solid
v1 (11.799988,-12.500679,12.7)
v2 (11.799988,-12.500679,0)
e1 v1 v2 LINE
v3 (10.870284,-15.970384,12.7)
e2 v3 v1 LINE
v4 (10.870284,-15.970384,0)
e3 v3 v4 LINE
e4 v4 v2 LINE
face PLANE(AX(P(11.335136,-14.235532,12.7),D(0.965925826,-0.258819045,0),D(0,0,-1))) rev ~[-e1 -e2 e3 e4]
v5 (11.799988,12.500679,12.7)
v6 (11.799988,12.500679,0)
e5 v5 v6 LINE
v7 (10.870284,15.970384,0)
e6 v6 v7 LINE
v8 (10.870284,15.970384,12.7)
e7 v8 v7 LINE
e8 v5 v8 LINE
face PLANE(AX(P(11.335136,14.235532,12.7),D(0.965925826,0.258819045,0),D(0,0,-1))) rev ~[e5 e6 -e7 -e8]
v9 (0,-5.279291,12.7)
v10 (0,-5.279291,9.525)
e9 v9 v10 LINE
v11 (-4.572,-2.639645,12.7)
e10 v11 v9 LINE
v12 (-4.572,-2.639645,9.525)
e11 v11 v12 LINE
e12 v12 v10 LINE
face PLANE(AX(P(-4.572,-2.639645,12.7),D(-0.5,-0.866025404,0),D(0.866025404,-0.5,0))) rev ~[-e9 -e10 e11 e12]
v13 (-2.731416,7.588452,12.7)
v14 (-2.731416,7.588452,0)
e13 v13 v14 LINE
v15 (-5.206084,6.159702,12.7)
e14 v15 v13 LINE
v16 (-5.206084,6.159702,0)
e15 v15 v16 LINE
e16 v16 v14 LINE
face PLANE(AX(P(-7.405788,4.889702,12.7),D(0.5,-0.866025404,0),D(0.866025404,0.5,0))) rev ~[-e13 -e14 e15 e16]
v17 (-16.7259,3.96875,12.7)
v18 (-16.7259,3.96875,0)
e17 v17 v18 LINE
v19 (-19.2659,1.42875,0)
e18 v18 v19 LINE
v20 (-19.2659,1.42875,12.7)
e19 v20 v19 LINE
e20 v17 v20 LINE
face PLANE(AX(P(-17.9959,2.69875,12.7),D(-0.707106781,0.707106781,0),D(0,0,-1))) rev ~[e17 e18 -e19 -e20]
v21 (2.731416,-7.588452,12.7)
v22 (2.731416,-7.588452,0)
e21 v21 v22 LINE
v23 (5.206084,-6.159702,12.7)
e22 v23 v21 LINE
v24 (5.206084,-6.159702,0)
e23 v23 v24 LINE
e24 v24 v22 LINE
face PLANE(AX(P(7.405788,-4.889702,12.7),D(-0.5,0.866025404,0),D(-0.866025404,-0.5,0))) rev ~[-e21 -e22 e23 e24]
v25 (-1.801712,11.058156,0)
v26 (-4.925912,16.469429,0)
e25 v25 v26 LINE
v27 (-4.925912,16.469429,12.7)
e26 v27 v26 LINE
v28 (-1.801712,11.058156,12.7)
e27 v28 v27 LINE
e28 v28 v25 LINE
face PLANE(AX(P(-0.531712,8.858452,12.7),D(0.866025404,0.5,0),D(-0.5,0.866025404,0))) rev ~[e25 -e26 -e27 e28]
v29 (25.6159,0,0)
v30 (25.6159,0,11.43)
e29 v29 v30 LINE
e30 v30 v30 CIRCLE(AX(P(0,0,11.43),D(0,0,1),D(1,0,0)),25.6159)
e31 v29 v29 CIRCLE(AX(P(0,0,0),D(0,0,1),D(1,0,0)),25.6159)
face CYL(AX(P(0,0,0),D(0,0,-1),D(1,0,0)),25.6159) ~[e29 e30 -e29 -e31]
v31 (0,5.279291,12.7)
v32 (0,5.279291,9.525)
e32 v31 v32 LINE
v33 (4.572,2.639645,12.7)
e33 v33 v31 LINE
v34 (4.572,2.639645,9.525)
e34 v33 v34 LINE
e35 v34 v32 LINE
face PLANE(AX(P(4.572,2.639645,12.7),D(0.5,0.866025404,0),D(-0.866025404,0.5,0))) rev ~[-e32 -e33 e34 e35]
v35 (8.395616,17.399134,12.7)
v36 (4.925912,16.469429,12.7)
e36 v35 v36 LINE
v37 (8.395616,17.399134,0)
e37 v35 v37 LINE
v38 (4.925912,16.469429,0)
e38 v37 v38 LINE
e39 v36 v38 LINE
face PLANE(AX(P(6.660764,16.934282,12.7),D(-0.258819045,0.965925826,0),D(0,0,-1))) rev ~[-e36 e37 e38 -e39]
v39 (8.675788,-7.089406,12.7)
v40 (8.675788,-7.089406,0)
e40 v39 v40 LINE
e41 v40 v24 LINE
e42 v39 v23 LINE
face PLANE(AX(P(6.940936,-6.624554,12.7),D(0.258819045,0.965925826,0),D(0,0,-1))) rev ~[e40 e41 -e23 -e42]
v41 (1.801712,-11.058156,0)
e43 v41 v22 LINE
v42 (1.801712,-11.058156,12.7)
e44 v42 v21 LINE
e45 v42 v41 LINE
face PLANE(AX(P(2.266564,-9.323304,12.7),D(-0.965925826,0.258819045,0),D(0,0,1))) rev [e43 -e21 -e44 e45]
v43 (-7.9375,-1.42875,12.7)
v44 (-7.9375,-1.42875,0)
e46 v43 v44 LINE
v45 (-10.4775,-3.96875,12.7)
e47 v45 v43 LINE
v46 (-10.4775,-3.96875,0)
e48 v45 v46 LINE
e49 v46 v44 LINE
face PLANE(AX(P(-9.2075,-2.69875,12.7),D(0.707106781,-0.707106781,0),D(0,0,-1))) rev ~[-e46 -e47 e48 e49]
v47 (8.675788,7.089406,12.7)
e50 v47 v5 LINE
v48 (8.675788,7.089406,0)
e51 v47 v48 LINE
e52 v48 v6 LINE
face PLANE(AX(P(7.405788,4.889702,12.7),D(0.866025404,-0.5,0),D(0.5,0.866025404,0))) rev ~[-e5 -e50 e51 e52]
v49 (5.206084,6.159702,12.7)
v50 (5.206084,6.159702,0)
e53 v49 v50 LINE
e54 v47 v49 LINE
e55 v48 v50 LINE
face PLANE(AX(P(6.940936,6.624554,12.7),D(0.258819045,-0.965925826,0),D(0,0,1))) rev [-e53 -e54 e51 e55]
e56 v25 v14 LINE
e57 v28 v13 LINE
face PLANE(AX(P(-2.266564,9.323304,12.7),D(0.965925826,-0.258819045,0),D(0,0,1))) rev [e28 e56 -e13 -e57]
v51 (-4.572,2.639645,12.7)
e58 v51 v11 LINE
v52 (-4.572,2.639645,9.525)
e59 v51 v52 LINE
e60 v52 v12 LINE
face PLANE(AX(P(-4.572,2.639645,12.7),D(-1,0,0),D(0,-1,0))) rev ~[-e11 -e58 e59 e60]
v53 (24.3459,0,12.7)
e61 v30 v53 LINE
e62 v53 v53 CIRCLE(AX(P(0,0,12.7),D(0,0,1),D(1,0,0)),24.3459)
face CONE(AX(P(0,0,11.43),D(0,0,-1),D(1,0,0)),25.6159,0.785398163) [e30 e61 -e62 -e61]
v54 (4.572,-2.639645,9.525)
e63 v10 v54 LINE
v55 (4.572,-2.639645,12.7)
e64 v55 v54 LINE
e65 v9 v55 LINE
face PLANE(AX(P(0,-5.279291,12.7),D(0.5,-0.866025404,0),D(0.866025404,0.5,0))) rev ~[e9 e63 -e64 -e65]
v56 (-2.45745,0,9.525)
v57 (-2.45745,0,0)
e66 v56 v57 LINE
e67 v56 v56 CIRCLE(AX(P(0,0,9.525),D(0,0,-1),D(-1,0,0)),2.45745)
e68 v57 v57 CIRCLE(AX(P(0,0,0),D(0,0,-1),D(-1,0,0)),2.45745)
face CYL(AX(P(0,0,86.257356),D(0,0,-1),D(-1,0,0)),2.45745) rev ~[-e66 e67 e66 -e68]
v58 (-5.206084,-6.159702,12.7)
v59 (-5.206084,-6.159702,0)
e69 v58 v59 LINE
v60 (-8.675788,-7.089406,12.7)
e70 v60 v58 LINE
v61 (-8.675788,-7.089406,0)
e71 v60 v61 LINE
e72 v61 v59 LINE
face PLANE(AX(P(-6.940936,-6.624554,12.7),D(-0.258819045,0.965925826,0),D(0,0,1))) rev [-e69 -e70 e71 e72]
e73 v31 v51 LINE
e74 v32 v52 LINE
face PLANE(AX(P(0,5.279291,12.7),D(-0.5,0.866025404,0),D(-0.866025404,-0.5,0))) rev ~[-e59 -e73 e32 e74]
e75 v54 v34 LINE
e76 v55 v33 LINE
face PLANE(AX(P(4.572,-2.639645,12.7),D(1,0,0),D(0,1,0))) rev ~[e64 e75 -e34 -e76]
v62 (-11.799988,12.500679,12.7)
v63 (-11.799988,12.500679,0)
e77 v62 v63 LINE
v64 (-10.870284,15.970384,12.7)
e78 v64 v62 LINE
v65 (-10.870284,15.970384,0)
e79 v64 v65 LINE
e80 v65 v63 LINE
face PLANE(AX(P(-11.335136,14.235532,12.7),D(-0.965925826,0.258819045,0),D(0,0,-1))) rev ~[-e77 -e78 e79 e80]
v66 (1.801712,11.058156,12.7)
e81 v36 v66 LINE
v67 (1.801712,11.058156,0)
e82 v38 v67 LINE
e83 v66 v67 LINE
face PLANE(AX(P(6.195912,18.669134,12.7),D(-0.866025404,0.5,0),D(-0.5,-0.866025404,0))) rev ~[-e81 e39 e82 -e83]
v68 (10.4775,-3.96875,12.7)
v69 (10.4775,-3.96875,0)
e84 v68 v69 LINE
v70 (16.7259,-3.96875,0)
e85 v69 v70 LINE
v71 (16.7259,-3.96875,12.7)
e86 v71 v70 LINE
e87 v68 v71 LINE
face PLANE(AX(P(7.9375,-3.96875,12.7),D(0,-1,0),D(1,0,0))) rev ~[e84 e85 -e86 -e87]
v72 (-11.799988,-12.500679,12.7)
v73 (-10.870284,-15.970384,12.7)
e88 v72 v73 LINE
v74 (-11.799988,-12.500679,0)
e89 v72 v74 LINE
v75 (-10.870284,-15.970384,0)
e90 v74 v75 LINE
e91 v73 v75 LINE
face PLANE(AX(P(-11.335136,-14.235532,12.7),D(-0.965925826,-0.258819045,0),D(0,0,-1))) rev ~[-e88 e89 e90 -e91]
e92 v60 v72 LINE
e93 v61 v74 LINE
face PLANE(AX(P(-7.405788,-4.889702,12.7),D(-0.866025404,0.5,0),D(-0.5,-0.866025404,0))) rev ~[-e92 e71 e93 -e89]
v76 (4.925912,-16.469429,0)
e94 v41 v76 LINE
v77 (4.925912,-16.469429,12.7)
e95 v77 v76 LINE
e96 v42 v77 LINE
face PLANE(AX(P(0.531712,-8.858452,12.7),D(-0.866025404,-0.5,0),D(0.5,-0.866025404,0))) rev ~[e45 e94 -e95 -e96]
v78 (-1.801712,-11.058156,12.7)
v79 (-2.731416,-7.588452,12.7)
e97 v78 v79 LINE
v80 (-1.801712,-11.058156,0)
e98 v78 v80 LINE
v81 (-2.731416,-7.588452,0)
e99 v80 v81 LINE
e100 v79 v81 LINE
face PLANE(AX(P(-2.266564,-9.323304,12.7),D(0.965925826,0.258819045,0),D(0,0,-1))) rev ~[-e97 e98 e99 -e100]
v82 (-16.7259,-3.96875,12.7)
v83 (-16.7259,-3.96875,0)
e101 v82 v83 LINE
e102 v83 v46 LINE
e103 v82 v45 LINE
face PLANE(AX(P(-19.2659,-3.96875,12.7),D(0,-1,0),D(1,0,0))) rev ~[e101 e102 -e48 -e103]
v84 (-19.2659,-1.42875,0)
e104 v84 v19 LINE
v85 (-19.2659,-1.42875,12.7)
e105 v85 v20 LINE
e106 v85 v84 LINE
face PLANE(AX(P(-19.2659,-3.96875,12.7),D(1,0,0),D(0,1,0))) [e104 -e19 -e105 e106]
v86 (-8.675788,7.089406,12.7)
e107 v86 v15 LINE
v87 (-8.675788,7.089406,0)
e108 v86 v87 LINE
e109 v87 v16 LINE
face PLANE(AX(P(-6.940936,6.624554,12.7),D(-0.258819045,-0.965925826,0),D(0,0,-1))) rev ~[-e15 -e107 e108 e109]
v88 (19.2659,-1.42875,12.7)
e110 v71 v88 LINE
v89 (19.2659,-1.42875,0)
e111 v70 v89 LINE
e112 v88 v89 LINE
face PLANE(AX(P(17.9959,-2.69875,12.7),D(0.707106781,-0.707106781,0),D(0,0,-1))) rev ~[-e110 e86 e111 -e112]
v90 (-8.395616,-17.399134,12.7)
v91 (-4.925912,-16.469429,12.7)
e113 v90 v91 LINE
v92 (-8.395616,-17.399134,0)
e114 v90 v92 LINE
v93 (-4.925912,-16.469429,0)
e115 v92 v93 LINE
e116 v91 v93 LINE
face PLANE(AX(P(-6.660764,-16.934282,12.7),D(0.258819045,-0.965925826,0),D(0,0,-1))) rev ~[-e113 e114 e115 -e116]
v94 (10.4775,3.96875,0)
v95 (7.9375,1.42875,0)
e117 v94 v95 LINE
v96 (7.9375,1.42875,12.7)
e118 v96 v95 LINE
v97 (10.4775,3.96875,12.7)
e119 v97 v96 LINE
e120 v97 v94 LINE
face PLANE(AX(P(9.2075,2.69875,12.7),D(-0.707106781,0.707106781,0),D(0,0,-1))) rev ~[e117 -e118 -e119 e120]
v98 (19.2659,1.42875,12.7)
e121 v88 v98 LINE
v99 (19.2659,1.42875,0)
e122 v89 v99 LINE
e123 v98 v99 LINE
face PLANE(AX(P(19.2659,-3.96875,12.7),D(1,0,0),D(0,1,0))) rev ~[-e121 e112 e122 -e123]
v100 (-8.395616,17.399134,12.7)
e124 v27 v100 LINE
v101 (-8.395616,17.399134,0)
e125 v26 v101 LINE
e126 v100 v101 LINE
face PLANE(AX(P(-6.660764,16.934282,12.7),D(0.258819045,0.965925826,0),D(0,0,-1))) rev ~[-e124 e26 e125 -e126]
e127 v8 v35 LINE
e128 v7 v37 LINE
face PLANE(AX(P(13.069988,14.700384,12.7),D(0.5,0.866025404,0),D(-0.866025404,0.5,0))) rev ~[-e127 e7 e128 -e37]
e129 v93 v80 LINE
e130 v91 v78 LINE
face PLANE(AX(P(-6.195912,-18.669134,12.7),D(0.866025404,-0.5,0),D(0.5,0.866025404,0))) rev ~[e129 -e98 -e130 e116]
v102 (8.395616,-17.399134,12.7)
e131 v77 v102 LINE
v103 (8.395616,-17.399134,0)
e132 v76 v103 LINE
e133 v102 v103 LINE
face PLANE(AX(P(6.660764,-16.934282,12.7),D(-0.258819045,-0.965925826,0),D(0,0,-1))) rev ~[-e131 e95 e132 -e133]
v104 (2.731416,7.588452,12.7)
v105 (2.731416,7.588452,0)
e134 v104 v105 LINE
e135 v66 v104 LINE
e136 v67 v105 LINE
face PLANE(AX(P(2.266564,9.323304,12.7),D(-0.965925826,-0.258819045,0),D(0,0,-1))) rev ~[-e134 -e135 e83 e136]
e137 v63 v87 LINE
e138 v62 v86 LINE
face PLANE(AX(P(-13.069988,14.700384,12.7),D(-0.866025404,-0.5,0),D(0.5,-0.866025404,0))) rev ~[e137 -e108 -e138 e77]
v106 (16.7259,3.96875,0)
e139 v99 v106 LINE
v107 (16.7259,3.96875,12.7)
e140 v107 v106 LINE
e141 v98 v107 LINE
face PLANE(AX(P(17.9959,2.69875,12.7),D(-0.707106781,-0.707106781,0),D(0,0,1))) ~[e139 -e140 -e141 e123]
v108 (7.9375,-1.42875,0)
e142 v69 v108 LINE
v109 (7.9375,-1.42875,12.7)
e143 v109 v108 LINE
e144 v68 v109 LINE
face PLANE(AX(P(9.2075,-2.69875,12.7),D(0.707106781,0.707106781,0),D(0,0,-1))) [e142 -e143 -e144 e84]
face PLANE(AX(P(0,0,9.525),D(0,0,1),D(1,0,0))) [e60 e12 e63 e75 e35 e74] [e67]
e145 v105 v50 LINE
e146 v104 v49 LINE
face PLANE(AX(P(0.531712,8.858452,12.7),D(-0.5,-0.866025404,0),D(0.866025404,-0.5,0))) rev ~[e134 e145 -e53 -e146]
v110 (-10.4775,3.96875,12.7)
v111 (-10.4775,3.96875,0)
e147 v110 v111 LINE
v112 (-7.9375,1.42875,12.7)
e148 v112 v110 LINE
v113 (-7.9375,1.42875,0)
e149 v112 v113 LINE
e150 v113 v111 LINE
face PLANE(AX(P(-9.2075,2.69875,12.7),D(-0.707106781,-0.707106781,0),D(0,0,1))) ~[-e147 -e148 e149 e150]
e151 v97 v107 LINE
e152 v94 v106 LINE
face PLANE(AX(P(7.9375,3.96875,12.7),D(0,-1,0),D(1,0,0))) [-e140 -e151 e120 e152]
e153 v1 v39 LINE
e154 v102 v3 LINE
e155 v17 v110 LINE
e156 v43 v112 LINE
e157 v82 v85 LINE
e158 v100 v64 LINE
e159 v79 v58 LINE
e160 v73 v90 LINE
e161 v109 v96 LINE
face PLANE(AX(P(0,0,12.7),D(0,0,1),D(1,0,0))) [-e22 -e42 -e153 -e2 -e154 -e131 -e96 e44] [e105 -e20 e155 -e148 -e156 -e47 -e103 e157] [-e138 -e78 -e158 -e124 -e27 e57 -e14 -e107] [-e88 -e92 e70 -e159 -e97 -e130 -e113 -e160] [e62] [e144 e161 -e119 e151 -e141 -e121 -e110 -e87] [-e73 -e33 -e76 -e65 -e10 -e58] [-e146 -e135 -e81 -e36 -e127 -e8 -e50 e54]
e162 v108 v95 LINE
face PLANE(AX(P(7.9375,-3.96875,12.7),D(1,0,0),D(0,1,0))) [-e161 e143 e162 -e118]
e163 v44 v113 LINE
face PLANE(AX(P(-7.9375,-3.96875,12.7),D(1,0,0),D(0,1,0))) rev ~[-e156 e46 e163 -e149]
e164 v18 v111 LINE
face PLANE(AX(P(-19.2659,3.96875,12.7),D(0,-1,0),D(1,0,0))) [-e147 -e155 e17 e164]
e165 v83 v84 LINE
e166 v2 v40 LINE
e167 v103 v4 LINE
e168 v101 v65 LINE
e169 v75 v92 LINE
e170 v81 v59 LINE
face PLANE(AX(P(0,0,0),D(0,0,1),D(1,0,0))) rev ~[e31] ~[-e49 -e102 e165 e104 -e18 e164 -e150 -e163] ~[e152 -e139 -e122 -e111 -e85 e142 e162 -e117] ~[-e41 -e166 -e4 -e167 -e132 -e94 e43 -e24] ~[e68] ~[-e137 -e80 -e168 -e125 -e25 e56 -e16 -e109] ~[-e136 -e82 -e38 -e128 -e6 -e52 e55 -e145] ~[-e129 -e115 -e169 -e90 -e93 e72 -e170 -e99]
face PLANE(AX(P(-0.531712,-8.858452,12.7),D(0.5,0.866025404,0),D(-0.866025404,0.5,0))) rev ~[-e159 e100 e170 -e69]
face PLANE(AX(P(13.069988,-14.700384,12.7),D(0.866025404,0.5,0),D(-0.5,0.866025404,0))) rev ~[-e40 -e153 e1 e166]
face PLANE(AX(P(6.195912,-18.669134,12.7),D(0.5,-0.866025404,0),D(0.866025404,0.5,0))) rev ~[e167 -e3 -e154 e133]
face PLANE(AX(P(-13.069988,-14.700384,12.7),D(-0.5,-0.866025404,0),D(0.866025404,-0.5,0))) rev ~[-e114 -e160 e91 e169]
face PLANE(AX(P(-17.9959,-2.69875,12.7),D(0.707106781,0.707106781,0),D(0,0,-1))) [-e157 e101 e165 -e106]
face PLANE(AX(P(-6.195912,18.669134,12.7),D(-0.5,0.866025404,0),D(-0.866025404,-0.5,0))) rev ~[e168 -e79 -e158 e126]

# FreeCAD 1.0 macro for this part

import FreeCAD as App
import Part
import Sketcher

V = App.Vector
Q = App.Units.Quantity


def edges_at(feature, points):
    """Names of the edges that pass closest to the given points."""
    edges = feature.Shape.Edges
    near = lambda p: min(range(len(edges)), key=lambda i: edges[i].distToShape(Part.Vertex(*p))[0])
    return sorted({f"Edge{near(p) + 1}" for p in points})


def add_polygon(sketch, points):
    """Adds a closed chain of lines whose ends are joined by coincident constraints."""
    first, n = sketch.GeometryCount, len(points)
    for a, b in zip(points, points[1:] + points[:1]):
        sketch.addGeometry(Part.LineSegment(App.Vector(*a, 0), App.Vector(*b, 0)), False)
    for i in range(n):
        sketch.addConstraint(Sketcher.Constraint("Coincident", first + i, 2, first + (i + 1) % n, 1))

doc = App.newDocument("Part")
params = doc.addObject("Spreadsheet::Sheet", "Params")
for row, (alias, value) in enumerate([
    ("sketch1_diameter", "2.017 in"),
    ("pad1_length", "0.5 in"),
    ("chamfer_size", "0.05 in"),
    ("pocket1_length", "0.125 in"),
    ("hole_diameter", "0.1935 in"),
    ("sketch4_width", "0.446 in"),
    ("sketch4_height", "0.3125 in"),
    ("sketch4_length", "0.446 in"),
    ("sketch4_length2", "0.3125 in"),
    ("chamfer2_size", "0.1 in"),
], start=1):
    params.set(f"A{row}", alias)
    params.set(f"B{row}", "=" + value)
    params.setAlias(f"B{row}", alias)

body = doc.addObject("PartDesign::Body", "Body")

# Sketch on XY plane
sketch1 = body.newObject("Sketcher::SketchObject", "Sketch")
sketch1.AttachmentSupport = (doc.getObject("XY_Plane"), [""])
sketch1.MapMode = "FlatFace"
sketch1.addGeometry(Part.Circle(V(0, 0, 0), V(0, 0, 1), 26), False)
sketch1.addConstraint(Sketcher.Constraint("Coincident", 0, 3, -1, 1))
sketch1.addConstraint(Sketcher.Constraint("Diameter", 0, Q("2.017 in")))
sketch1.setExpression("Constraints[1]", "Params.sketch1_diameter")
pad1 = body.newObject("PartDesign::Pad", "Pad")
pad1.Profile = sketch1
pad1.setExpression("Length", "Params.pad1_length")
doc.recompute()

chamfer = body.newObject("PartDesign::Chamfer", "Chamfer")
chamfer.Base = (pad1, edges_at(pad1, [(-25.616, 0, 12.7)]))
chamfer.setExpression("Size", "Params.chamfer_size")

# Sketch on XY plane
sketch2 = body.newObject("Sketcher::SketchObject", "Sketch001")
sketch2.AttachmentSupport = (doc.getObject("XY_Plane"), [""])
sketch2.MapMode = "FlatFace"
sketch2.AttachmentOffset = App.Placement(V(0, 0, 0.5 * 25.4), App.Rotation())
add_polygon(sketch2, [(-5, -3), (0, -5), (5, -3), (5, 3), (0, 5), (-5, 3)])  # lines 0-5
sketch2.addConstraint(Sketcher.Constraint("Vertical", 2))
sketch2.addConstraint(Sketcher.Constraint("Vertical", 5))
sketch2.addConstraint(Sketcher.Constraint("Symmetric", 0, 2, 3, 2, -1, 1))
sketch2.addConstraint(Sketcher.Constraint("Symmetric", 1, 2, 4, 2, -1, 1))
sketch2.addConstraint(Sketcher.Constraint("PointOnObject", 0, 2, -2))
sketch2.addConstraint(Sketcher.Constraint("Parallel", 0, 3))
sketch2.addConstraint(Sketcher.Constraint("Horizontal", 2, 2, 4, 2))
sketch2.addConstraint(Sketcher.Constraint("Angle", 0, Q("-30 deg")))
sketch2.addConstraint(Sketcher.Constraint("DistanceX", -1, 1, 1, 2, Q("0.18 in")))
sketch2.addConstraint(Sketcher.Constraint("DistanceY", 2, 1, 2, 2, 5.279291))
pocket1 = body.newObject("PartDesign::Pocket", "Pocket")
pocket1.Profile = sketch2
pocket1.setExpression("Length", "Params.pocket1_length")

# Sketch on XY plane
sketch3 = body.newObject("Sketcher::SketchObject", "Sketch002")
sketch3.AttachmentSupport = (doc.getObject("XY_Plane"), [""])
sketch3.MapMode = "FlatFace"
sketch3.AttachmentOffset = App.Placement(V(0, 0, 0.5 * 25.4), App.Rotation())
sketch3.addGeometry(Part.Circle(V(0, 0, 0), V(0, 0, 1), 2.5), False)
sketch3.addConstraint(Sketcher.Constraint("Coincident", 0, 3, -1, 1))
sketch3.addConstraint(Sketcher.Constraint("Diameter", 0, Q("0.1935 in")))
doc.recompute()
hole = body.newObject("PartDesign::Hole", "Hole")
hole.Profile = sketch3
hole.ThreadType = "None"
hole.setExpression("Diameter", "Params.hole_diameter")
hole.DepthType = "ThroughAll"

# Sketch on XY plane
sketch4 = body.newObject("Sketcher::SketchObject", "Sketch003")
sketch4.AttachmentSupport = (doc.getObject("XY_Plane"), [""])
sketch4.MapMode = "FlatFace"
sketch4.AttachmentOffset = App.Placement(V(0, 0, 0.5 * 25.4), App.Rotation())
add_polygon(sketch4, [(-7, -5), (-13, -15), (-6, -19), (-1, -9)])  # lines 0-3
add_polygon(sketch4, [(-19, 4), (-19, -4), (-8, -4), (-8, 4)])  # lines 4-7
add_polygon(sketch4, [(-1, 9), (-6, 19), (-13, 15), (-7, 5)])  # lines 8-11
add_polygon(sketch4, [(7, 5), (13, 15), (6, 19), (1, 9)])  # lines 12-15
add_polygon(sketch4, [(8, 4), (8, -4), (19, -4), (19, 4)])  # lines 16-19
add_polygon(sketch4, [(1, -9), (6, -19), (13, -15), (7, -5)])  # lines 20-23
sketch4.addConstraint(Sketcher.Constraint("Vertical", 4))
sketch4.addConstraint(Sketcher.Constraint("Horizontal", 5))
sketch4.addConstraint(Sketcher.Constraint("Vertical", 6))
sketch4.addConstraint(Sketcher.Constraint("Horizontal", 7))
sketch4.addConstraint(Sketcher.Constraint("Vertical", 16))
sketch4.addConstraint(Sketcher.Constraint("Horizontal", 17))
sketch4.addConstraint(Sketcher.Constraint("Vertical", 18))
sketch4.addConstraint(Sketcher.Constraint("Horizontal", 19))
sketch4.addConstraint(Sketcher.Constraint("Symmetric", 0, 2, 12, 2, -1, 1))
sketch4.addConstraint(Sketcher.Constraint("Symmetric", 1, 2, 13, 2, -1, 1))
sketch4.addConstraint(Sketcher.Constraint("Symmetric", 2, 2, 14, 2, -1, 1))
sketch4.addConstraint(Sketcher.Constraint("Symmetric", 3, 2, 15, 2, -1, 1))
sketch4.addConstraint(Sketcher.Constraint("Symmetric", 6, 2, 16, 2, -1, 1))
sketch4.addConstraint(Sketcher.Constraint("Symmetric", 4, 2, 18, 2, -1, 1))
sketch4.addConstraint(Sketcher.Constraint("Symmetric", 8, 2, 20, 2, -1, 1))
sketch4.addConstraint(Sketcher.Constraint("Symmetric", 9, 2, 21, 2, -1, 1))
sketch4.addConstraint(Sketcher.Constraint("Symmetric", 10, 2, 22, 2, -1, 1))
sketch4.addConstraint(Sketcher.Constraint("Symmetric", 11, 2, 23, 2, -1, 1))
sketch4.addConstraint(Sketcher.Constraint("Symmetric", 9, 2, 12, 2, -2))
sketch4.addConstraint(Sketcher.Constraint("Symmetric", 8, 2, 13, 2, -2))
sketch4.addConstraint(Sketcher.Constraint("Symmetric", 11, 2, 14, 2, -2))
sketch4.addConstraint(Sketcher.Constraint("Symmetric", 10, 2, 15, 2, -2))
sketch4.addConstraint(Sketcher.Constraint("Perpendicular", 0, 1))
sketch4.addConstraint(Sketcher.Constraint("Perpendicular", 1, 2))
sketch4.addConstraint(Sketcher.Constraint("Perpendicular", 2, 3))
sketch4.addConstraint(Sketcher.Constraint("Horizontal", 5, 2, 16, 2))
sketch4.addConstraint(Sketcher.Constraint("Angle", 0, Q("-120 deg")))
sketch4.addConstraint(Sketcher.Constraint("DistanceX", 5, 1, 5, 2, Q("0.446 in")))
sketch4.addConstraint(Sketcher.Constraint("DistanceY", 4, 2, 4, 1, Q("0.3125 in")))
sketch4.addConstraint(Sketcher.Constraint("Distance", 0, Q("0.446 in")))
sketch4.addConstraint(Sketcher.Constraint("Distance", 1, Q("0.3125 in")))
sketch4.addConstraint(Sketcher.Constraint("DistanceX", 5, 2, -1, 1, Q("0.3125 in")))
sketch4.addConstraint(Sketcher.Constraint("DistanceX", 10, 2, 14, 2, Q("0.3125 in")))
sketch4.addConstraint(Sketcher.Constraint("DistanceY", 3, 2, -1, 1, 4.889702))
sketch4.setExpression("Constraints[51]", "Params.sketch4_width")
sketch4.setExpression("Constraints[52]", "Params.sketch4_height")
sketch4.setExpression("Constraints[53]", "Params.sketch4_length")
sketch4.setExpression("Constraints[54]", "Params.sketch4_length2")
pocket2 = body.newObject("PartDesign::Pocket", "Pocket001")
pocket2.Profile = sketch4
pocket2.Type = "ThroughAll"
doc.recompute()

chamfer2 = body.newObject("PartDesign::Chamfer", "Chamfer001")
chamfer2.Base = (pocket2, edges_at(pocket2, [
    (6.196, -18.669, 6.35),
    (0.532, -8.858, 6.35),
    (7.406, -4.89, 6.35),
    (13.07, -14.7, 6.35),
    (19.266, -3.969, 6.35),
    (7.938, -3.969, 6.35),
    (7.938, 3.969, 6.35),
    (19.266, 3.969, 6.35),
    (13.07, 14.7, 6.35),
    (7.406, 4.89, 6.35),
    (0.532, 8.858, 6.35),
    (6.196, 18.669, 6.35),
    (-6.196, 18.669, 6.35),
    (-0.532, 8.858, 6.35),
    (-7.406, 4.89, 6.35),
    (-13.07, 14.7, 6.35),
    (-19.266, 3.969, 6.35),
    (-7.938, 3.969, 6.35),
    (-7.938, -3.969, 6.35),
    (-19.266, -3.969, 6.35),
    (-13.07, -14.7, 6.35),
    (-7.406, -4.89, 6.35),
    (-0.532, -8.858, 6.35),
    (-6.196, -18.669, 6.35),
]))
chamfer2.setExpression("Size", "Params.chamfer2_size")

doc.recompute()
